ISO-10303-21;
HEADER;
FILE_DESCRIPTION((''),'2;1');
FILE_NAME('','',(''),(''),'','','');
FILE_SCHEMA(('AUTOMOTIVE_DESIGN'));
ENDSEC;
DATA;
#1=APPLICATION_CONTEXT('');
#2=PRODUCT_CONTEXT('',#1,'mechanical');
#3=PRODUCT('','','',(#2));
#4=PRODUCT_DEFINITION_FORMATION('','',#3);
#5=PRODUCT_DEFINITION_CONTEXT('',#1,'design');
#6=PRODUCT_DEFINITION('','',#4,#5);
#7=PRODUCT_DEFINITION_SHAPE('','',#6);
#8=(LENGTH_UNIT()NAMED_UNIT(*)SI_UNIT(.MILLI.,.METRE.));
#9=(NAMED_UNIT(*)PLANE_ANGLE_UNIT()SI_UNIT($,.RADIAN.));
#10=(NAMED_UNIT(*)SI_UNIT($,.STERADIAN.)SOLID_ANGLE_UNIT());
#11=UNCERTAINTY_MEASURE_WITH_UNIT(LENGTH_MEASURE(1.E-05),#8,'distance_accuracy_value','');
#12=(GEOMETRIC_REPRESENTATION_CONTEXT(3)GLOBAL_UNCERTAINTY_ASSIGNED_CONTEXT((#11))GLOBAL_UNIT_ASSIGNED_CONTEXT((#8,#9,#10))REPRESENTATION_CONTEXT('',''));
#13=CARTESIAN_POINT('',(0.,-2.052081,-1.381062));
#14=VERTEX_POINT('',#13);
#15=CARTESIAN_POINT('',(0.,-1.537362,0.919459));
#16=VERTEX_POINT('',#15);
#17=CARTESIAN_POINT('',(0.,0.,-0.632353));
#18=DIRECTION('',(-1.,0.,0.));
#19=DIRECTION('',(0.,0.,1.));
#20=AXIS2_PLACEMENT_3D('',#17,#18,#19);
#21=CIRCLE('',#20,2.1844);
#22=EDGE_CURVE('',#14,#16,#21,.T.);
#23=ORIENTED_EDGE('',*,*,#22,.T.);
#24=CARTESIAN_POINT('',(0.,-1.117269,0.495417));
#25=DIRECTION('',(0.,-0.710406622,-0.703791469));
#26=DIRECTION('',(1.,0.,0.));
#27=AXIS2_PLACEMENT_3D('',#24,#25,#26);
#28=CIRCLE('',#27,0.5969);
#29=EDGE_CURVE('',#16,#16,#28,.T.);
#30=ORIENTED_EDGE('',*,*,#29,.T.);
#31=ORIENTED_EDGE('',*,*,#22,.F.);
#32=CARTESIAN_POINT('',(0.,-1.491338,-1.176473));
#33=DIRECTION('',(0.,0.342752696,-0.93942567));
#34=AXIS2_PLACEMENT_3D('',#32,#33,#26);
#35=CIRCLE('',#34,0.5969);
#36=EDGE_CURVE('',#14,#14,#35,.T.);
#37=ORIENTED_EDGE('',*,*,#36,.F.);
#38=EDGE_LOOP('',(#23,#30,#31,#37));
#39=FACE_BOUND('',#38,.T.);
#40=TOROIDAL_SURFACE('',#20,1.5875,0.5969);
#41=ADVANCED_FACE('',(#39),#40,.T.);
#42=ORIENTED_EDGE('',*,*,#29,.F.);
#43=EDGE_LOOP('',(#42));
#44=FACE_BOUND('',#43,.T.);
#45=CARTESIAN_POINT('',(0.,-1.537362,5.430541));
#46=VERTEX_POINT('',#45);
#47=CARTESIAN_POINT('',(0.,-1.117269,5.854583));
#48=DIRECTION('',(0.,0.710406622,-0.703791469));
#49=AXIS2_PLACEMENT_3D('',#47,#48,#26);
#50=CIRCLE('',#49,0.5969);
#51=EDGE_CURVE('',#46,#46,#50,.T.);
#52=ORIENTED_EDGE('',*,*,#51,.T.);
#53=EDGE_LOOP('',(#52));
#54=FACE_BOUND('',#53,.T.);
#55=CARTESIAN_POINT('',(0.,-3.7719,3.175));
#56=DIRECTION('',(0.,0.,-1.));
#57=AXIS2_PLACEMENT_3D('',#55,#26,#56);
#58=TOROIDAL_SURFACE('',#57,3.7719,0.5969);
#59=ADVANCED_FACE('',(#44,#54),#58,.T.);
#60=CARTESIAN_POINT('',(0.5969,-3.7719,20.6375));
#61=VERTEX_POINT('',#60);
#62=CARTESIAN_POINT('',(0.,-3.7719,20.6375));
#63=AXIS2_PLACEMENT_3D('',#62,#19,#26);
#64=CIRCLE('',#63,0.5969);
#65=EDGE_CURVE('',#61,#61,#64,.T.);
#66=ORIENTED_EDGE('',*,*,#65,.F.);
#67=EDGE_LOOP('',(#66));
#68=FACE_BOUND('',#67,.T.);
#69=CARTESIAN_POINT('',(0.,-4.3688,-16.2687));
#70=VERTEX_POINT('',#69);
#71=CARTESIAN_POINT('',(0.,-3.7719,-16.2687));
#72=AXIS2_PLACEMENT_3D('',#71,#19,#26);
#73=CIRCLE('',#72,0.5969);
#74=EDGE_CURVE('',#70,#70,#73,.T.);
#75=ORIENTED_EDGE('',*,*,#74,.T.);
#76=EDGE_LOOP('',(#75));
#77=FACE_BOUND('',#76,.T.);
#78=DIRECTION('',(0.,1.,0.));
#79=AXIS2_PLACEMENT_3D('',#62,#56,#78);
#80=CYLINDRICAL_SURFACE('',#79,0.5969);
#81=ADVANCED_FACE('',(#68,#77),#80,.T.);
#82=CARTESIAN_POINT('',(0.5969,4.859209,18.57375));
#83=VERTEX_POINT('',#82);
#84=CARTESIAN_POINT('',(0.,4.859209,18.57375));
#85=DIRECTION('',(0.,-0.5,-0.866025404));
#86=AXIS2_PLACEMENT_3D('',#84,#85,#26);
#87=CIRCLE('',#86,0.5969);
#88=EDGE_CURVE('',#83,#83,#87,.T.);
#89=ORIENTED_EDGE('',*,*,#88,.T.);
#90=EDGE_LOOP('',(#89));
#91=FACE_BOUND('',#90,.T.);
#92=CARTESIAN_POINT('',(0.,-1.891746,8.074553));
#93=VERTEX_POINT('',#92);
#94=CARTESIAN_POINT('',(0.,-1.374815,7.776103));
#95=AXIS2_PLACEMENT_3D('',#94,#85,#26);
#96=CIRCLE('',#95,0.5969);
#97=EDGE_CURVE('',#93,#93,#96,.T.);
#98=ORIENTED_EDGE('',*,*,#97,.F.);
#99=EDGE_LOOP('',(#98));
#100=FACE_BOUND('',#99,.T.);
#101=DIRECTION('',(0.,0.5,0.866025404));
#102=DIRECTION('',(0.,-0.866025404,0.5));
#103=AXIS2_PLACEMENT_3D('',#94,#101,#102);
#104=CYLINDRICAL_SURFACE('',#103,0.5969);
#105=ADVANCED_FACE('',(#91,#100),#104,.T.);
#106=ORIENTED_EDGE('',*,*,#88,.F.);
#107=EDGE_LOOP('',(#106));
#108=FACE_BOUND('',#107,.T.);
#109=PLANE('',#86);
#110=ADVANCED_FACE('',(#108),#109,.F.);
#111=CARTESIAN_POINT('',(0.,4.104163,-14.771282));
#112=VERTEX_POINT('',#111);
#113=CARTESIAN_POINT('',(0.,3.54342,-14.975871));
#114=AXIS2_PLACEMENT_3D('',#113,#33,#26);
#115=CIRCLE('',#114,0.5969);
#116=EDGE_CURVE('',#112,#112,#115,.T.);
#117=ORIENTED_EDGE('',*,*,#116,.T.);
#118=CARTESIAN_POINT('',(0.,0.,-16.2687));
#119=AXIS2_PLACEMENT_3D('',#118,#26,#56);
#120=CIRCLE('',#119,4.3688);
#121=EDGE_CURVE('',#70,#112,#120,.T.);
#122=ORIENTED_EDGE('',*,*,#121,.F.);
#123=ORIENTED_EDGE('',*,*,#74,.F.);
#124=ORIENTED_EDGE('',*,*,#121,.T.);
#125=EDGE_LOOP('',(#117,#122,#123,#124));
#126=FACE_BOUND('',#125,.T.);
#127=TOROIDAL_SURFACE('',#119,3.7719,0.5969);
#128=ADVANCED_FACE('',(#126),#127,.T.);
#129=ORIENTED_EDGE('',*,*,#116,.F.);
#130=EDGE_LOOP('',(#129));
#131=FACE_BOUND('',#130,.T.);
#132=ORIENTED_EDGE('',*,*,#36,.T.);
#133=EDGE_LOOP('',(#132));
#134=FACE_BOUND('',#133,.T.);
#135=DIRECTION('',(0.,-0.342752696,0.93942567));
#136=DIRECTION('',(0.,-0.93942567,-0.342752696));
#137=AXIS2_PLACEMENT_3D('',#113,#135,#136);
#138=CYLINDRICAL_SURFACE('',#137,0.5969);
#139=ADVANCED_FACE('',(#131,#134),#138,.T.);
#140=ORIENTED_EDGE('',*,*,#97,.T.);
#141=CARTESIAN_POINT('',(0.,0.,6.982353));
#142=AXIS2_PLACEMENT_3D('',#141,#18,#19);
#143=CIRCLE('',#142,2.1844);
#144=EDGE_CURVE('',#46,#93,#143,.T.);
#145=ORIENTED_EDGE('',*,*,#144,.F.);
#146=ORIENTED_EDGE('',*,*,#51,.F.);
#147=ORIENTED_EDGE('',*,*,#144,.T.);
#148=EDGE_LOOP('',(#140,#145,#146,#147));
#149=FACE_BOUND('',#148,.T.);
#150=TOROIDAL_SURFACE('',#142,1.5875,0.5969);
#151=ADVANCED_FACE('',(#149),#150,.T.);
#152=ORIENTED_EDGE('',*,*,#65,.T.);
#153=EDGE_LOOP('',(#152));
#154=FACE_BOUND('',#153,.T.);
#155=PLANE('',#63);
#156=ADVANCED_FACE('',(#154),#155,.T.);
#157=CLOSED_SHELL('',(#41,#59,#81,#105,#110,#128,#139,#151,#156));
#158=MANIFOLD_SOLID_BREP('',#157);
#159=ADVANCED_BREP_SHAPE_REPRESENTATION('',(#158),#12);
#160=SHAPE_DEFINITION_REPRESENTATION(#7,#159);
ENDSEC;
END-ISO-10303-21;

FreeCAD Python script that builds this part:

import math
import FreeCAD as App
import Part
import Sketcher
from FreeCAD import Vector
Q = App.Units.Quantity

doc = App.newDocument("Part")
body = doc.addObject("PartDesign::Body", "Body")

# Sketch on XY plane
sketch1 = body.newObject("Sketcher::SketchObject", "Sketch")
sketch1.AttachmentSupport = (doc.getObject("XY_Plane"), [""])
sketch1.MapMode = "FlatFace"
sketch1.AttachmentOffset = App.Placement(Vector(0, 0, 0.8125 * 25.4), App.Rotation())
sketch1.addGeometry(Part.Circle(Vector(0, -3.7719, 0), Vector(0, 0, 1), 0.5969), False)
sketch1.addConstraint(Sketcher.Constraint("PointOnObject", 0, 3, -2))
sketch1.addConstraint(Sketcher.Constraint("Diameter", 0, Q("0.047 in")))
sketch1.addConstraint(Sketcher.Constraint("DistanceY", 0, 3, -1, 1, Q("0.1485 in")))

# Sketch on YZ plane
sketch2 = body.newObject("Sketcher::SketchObject", "Sketch001")
sketch2.AttachmentSupport = (doc.getObject("YZ_Plane"), [""])
sketch2.MapMode = "FlatFace"
sketch2.addGeometry(Part.LineSegment(Vector(4.859209, 18.57375, 0), Vector(-1.374815, 7.776103, 0)), False)
sketch2.addGeometry(Part.ArcOfCircle(Part.Circle(Vector(0, 6.982353, 0), Vector(0, 0, 1), 1.5875), math.radians(150), math.radians(225.268009)), False)
sketch2.addGeometry(Part.ArcOfCircle(Part.Circle(Vector(-3.7719, 3.175, 0), Vector(0, 0, 1), 3.7719), math.radians(-45.268009), math.radians(45.268009)), False)
sketch2.addGeometry(Part.ArcOfCircle(Part.Circle(Vector(0, -0.632353, 0), Vector(0, 0, 1), 1.5875), math.radians(134.731991), math.radians(200.044672)), False)
sketch2.addGeometry(Part.LineSegment(Vector(-1.491338, -1.176473, 0), Vector(3.54342, -14.975871, 0)), False)
sketch2.addGeometry(Part.ArcOfCircle(Part.Circle(Vector(0, -16.2687, 0), Vector(0, 0, 1), 3.7719), math.radians(180), math.radians(380.044672)), False)
sketch2.addGeometry(Part.LineSegment(Vector(-3.7719, -16.2687, 0), Vector(-3.7719, 20.6375, 0)), False)
sketch2.addConstraint(Sketcher.Constraint("Tangent", 0, 2, 1, 1))
sketch2.addConstraint(Sketcher.Constraint("Tangent", 1, 2, 2, 2))
sketch2.addConstraint(Sketcher.Constraint("Tangent", 2, 1, 3, 1))
sketch2.addConstraint(Sketcher.Constraint("Tangent", 3, 2, 4, 1))
sketch2.addConstraint(Sketcher.Constraint("Tangent", 4, 2, 5, 2))
sketch2.addConstraint(Sketcher.Constraint("Tangent", 5, 1, 6, 1))
sketch2.addConstraint(Sketcher.Constraint("Vertical", 6))
sketch2.addConstraint(Sketcher.Constraint("Equal", 1, 3))
sketch2.addConstraint(Sketcher.Constraint("Equal", 2, 5))
sketch2.addConstraint(Sketcher.Constraint("PointOnObject", 1, 3, -2))
sketch2.addConstraint(Sketcher.Constraint("PointOnObject", 3, 3, -2))
sketch2.addConstraint(Sketcher.Constraint("PointOnObject", 5, 3, -2))
sketch2.addConstraint(Sketcher.Constraint("Vertical", 2, 3, 5, 1))
sketch2.addConstraint(Sketcher.Constraint("Angle", 0, Q("-120 deg")))
sketch2.addConstraint(Sketcher.Constraint("Radius", 1, Q("0.0625 in")))
sketch2.addConstraint(Sketcher.Constraint("Radius", 2, Q("0.1485 in")))
sketch2.addConstraint(Sketcher.Constraint("DistanceY", 6, 1, 6, 2, Q("1.453 in")))
sketch2.addConstraint(Sketcher.Constraint("DistanceY", -1, 1, 2, 3, Q("0.125 in")))
sketch2.addConstraint(Sketcher.Constraint("DistanceY", -1, 1, 6, 2, Q("0.8125 in")))
sketch2.addConstraint(Sketcher.Constraint("Distance", 0, Q("12.468049 mm")))
doc.recompute()

additivepipe = body.newObject("PartDesign::AdditivePipe", "AdditivePipe")
additivepipe.Profile = sketch1
additivepipe.Spine = (sketch2, ["Edge1", "Edge2", "Edge3", "Edge4", "Edge5", "Edge6", "Edge7"])

doc.recompute()
